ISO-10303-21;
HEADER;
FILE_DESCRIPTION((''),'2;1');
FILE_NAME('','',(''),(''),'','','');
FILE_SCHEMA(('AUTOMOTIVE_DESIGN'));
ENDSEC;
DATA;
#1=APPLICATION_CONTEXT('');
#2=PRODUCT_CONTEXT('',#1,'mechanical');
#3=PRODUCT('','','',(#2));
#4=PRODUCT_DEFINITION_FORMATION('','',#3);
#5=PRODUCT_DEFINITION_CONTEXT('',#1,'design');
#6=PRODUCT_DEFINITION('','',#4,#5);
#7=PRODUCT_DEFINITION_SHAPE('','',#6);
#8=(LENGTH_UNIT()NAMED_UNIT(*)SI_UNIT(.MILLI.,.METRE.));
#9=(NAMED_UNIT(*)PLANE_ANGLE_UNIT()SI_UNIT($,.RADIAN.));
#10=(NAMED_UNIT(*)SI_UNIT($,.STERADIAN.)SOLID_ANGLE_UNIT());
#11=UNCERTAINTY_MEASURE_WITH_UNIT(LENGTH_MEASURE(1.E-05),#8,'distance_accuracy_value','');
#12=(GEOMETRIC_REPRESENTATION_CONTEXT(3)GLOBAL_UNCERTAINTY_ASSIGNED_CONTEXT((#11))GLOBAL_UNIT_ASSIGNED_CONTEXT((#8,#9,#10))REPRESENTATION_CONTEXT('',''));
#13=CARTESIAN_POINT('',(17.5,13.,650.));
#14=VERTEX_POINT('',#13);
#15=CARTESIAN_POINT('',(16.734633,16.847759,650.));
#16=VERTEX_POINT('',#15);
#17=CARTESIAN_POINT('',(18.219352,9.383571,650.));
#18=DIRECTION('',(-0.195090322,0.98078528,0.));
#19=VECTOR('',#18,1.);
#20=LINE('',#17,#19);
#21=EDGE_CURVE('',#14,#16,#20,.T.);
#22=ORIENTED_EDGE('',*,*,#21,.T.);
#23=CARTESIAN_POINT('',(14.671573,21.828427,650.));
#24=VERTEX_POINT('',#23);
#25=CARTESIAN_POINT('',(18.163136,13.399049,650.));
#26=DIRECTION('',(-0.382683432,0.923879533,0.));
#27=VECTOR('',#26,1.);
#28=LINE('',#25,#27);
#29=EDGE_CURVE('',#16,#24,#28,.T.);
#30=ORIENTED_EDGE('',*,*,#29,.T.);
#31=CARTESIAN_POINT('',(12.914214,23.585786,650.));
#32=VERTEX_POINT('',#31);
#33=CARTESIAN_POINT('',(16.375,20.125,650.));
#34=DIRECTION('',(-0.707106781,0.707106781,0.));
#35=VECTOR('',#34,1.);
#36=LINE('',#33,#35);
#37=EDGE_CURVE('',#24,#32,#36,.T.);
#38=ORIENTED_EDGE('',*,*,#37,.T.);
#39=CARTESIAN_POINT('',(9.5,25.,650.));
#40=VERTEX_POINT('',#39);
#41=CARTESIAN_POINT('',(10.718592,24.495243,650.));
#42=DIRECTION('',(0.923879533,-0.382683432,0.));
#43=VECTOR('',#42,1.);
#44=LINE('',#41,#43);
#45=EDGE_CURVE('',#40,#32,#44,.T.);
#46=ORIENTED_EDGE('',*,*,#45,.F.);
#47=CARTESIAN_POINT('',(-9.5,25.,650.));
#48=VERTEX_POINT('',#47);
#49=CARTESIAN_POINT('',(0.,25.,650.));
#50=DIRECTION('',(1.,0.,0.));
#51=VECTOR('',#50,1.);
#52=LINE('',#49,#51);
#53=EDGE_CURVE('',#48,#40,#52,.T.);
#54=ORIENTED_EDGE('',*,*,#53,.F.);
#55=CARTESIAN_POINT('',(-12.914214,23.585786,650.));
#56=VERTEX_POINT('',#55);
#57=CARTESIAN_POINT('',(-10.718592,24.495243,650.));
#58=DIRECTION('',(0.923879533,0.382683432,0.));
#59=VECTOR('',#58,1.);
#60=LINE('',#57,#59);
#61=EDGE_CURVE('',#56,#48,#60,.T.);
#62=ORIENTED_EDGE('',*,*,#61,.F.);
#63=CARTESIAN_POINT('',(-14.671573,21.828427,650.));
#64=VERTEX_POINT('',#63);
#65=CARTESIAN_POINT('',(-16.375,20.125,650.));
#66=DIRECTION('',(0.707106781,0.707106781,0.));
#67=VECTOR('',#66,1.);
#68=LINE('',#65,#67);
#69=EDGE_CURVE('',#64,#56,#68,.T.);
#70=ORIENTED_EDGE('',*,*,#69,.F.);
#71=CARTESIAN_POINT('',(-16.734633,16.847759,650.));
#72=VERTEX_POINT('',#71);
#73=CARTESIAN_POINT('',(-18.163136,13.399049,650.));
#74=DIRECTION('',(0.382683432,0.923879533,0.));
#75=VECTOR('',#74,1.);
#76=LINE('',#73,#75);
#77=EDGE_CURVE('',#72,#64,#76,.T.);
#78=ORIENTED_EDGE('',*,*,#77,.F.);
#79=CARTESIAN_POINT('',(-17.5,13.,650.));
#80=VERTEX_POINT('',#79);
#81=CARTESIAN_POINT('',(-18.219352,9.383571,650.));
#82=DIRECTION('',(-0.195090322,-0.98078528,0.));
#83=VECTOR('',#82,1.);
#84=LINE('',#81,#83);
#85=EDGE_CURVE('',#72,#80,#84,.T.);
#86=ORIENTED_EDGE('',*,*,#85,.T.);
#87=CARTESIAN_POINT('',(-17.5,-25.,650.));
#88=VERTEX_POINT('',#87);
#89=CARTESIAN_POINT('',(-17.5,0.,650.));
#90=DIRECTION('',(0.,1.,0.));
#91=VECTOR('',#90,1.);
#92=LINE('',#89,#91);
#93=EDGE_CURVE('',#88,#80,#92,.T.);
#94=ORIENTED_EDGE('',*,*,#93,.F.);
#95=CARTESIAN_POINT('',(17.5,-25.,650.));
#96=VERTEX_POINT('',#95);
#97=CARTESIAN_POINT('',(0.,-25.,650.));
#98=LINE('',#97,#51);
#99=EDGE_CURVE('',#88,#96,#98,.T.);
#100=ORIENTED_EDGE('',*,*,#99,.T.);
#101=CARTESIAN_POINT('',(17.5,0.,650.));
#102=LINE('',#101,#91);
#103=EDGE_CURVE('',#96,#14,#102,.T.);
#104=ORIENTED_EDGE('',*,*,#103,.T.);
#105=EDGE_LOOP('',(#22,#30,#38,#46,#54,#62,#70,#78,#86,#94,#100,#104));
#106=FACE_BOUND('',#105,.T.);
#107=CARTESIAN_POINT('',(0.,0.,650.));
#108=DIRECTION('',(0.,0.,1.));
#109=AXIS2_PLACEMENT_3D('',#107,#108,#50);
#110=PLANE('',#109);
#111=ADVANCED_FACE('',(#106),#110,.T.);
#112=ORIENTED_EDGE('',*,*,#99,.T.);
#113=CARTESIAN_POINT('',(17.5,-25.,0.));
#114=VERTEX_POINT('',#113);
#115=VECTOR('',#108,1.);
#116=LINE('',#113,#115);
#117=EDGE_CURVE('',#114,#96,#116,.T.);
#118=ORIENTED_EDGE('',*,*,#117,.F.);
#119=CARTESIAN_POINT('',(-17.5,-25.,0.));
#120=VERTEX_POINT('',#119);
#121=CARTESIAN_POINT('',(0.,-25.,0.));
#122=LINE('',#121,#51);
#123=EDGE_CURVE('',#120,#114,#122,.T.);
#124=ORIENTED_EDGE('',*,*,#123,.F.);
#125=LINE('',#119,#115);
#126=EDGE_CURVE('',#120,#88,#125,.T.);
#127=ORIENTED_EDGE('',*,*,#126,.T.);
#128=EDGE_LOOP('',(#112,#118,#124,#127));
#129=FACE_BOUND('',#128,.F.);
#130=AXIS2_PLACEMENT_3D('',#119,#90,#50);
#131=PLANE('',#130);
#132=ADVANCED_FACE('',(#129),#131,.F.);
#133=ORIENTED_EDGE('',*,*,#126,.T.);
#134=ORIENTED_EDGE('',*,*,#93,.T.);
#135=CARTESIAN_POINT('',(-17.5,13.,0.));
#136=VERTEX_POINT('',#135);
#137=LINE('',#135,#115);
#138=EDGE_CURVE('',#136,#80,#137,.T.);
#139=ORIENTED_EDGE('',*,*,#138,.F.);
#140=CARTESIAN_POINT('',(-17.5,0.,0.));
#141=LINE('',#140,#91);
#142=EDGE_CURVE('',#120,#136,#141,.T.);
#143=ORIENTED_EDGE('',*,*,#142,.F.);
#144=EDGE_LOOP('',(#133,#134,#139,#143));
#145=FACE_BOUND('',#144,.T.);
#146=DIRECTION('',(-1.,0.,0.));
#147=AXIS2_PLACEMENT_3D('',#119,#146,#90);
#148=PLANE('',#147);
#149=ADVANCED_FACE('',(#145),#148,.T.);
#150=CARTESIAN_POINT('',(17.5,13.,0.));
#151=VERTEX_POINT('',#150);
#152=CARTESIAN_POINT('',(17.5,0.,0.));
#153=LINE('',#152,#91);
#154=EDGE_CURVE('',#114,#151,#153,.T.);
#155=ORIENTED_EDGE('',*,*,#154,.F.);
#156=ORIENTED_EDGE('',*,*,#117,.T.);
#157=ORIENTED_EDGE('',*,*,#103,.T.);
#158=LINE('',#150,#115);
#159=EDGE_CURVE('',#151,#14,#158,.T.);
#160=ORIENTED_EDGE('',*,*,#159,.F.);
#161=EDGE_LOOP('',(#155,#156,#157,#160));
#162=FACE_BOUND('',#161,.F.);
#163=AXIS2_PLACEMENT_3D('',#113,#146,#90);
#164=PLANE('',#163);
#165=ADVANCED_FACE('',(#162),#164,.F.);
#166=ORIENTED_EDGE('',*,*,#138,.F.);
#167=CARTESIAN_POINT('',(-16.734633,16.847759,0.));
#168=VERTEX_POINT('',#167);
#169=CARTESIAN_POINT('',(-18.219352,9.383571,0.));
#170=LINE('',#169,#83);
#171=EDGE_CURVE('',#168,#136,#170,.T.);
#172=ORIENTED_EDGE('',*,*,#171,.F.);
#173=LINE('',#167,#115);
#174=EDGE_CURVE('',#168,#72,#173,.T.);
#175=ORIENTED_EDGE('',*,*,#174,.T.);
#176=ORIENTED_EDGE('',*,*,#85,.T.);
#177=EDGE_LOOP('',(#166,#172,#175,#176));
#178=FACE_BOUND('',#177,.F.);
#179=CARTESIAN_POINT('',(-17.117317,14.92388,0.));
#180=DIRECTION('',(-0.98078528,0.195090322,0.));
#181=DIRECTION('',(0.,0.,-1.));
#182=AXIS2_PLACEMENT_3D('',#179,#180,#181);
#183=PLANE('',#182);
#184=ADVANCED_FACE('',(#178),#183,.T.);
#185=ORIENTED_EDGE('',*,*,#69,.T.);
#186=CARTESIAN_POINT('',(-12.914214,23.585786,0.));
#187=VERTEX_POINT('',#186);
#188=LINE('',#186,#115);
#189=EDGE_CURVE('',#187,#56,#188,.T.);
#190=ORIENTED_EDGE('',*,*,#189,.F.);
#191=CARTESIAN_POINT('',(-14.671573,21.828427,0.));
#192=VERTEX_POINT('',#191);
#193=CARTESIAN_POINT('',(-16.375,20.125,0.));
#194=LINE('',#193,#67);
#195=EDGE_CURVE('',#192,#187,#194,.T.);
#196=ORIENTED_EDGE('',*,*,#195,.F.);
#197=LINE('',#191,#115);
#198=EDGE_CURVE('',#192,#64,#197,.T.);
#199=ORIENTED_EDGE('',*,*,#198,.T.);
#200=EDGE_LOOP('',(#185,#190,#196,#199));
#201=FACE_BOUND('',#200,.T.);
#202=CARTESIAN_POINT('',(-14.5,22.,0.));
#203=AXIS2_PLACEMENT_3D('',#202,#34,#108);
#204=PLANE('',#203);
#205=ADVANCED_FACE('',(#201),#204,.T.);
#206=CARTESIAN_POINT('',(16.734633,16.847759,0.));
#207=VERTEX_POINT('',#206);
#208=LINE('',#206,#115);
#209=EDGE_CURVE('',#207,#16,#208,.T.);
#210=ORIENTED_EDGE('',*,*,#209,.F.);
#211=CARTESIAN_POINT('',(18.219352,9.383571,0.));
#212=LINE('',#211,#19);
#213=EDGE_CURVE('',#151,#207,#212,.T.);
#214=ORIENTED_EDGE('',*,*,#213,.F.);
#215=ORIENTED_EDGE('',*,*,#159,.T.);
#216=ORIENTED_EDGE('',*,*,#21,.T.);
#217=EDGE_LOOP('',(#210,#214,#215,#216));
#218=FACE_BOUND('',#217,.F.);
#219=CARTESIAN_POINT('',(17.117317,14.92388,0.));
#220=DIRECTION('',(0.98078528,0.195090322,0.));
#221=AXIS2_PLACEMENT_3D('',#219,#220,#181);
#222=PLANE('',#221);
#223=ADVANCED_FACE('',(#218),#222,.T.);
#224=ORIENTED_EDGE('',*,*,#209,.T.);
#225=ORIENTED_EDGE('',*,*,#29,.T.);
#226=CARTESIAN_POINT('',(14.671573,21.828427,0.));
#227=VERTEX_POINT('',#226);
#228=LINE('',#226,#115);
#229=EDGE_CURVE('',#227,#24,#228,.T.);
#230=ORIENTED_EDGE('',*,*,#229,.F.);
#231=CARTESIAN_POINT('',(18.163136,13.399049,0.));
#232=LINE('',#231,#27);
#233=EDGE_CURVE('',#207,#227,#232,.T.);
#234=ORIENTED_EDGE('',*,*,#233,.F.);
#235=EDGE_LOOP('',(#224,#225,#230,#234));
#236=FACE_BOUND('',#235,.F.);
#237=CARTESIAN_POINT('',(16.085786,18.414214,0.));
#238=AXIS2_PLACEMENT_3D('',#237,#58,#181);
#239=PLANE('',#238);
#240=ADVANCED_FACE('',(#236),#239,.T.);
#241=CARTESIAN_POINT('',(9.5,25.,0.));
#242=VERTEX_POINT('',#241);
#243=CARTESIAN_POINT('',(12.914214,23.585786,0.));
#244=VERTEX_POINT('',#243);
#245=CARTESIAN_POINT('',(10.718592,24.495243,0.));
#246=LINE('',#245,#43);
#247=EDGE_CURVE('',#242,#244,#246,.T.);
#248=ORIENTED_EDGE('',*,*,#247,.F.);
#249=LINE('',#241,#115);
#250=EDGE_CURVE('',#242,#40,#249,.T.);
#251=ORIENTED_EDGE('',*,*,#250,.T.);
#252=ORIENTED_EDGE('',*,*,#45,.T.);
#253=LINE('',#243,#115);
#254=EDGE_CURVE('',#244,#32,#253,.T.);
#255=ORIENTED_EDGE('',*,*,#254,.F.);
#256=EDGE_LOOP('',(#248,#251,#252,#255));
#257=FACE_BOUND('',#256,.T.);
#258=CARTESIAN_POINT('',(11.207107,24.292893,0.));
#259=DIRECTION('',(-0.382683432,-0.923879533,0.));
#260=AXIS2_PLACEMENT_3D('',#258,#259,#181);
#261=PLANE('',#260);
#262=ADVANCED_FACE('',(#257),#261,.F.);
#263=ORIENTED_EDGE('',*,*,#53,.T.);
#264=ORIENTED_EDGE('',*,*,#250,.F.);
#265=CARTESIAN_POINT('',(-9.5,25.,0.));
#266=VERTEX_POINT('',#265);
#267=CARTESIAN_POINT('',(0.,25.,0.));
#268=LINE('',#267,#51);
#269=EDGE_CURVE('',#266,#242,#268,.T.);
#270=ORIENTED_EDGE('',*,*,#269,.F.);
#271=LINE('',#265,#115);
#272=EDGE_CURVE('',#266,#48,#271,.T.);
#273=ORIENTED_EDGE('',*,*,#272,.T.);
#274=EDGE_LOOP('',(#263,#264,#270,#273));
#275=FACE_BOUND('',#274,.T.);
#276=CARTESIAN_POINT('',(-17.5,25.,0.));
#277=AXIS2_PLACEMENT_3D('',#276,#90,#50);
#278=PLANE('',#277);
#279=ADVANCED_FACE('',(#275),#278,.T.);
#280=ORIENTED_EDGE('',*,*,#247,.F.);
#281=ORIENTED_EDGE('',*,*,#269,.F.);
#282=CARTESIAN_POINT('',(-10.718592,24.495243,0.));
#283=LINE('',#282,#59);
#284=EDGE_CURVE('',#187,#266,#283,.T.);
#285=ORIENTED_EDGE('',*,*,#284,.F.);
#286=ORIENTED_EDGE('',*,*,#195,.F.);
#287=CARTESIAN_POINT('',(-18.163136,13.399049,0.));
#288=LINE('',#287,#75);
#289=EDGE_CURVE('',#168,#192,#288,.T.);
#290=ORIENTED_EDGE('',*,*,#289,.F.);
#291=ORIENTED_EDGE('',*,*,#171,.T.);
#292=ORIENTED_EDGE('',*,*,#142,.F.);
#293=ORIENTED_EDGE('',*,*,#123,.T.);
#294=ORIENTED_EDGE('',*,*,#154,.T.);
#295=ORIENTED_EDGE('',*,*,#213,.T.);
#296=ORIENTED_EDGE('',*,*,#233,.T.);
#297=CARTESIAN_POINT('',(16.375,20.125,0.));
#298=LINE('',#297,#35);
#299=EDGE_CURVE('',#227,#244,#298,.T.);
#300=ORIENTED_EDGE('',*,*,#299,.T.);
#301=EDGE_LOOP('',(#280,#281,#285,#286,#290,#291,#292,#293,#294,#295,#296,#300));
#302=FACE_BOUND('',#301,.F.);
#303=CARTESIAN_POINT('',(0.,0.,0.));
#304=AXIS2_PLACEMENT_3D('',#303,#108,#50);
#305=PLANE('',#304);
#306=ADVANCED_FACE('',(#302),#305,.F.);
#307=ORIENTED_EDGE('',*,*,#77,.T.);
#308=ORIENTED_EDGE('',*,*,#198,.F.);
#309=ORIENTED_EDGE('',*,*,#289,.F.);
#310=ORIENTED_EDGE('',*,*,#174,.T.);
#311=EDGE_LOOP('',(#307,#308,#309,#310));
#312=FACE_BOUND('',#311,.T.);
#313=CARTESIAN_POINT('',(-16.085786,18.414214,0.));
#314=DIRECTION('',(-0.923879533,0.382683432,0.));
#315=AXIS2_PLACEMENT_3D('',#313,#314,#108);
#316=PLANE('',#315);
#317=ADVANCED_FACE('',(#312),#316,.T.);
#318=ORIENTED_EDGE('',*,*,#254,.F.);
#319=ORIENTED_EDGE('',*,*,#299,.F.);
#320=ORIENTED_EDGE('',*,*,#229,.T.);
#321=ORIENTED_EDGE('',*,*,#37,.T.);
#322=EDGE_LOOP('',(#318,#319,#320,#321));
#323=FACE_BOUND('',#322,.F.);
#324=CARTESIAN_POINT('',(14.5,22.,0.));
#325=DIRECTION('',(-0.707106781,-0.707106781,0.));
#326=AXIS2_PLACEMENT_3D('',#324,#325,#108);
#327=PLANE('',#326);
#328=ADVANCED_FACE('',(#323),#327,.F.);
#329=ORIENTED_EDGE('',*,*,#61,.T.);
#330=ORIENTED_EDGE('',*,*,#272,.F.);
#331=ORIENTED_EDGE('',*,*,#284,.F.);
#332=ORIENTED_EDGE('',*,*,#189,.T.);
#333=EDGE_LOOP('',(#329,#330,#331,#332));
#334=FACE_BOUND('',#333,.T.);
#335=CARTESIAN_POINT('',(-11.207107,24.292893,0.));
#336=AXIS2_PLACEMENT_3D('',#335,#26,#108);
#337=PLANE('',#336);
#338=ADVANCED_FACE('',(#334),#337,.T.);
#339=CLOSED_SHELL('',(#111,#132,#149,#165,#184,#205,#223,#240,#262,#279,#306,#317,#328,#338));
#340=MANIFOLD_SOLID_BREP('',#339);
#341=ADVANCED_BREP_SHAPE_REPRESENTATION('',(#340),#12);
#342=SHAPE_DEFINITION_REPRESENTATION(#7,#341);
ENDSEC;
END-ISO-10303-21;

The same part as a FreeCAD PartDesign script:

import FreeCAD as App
import Part
import Sketcher


def edges_at(feature, points):
    """Names of the edges that pass closest to the given points."""
    edges = feature.Shape.Edges
    near = lambda p: min(range(len(edges)), key=lambda i: edges[i].distToShape(Part.Vertex(*p))[0])
    return sorted({f"Edge{near(p) + 1}" for p in points})


def add_polygon(sketch, points):
    """Adds a closed chain of lines whose ends are joined by coincident constraints."""
    first, n = sketch.GeometryCount, len(points)
    for a, b in zip(points, points[1:] + points[:1]):
        sketch.addGeometry(Part.LineSegment(App.Vector(*a, 0), App.Vector(*b, 0)), False)
    for i in range(n):
        sketch.addConstraint(Sketcher.Constraint("Coincident", first + i, 2, first + (i + 1) % n, 1))

doc = App.newDocument("Part")
params = doc.addObject("Spreadsheet::Sheet", "Params")
for row, (alias, value) in enumerate([
    ("sketch1_width", "35 mm"),
    ("sketch1_height", "50 mm"),
    ("pad1_length", "650 mm"),
    ("chamfer_size", "6 mm"),
    ("chamfer2_size", "4 mm"),
    ("chamfer3_size", "2 mm"),
    ("chamfer4_size", "2 mm"),
], start=1):
    params.set(f"A{row}", alias)
    params.set(f"B{row}", "=" + value)
    params.setAlias(f"B{row}", alias)

body = doc.addObject("PartDesign::Body", "Body")

# Sketch on XY plane
sketch1 = body.newObject("Sketcher::SketchObject", "Sketch")
sketch1.AttachmentSupport = (doc.getObject("XY_Plane"), [""])
sketch1.MapMode = "FlatFace"
add_polygon(sketch1, [(-17.5, 25), (-17.5, -25), (17.5, -25), (17.5, 25)])  # lines 0-3
sketch1.addConstraint([
    Sketcher.Constraint("Vertical", 0),
    Sketcher.Constraint("Horizontal", 1),
    Sketcher.Constraint("Vertical", 2),
    Sketcher.Constraint("Horizontal", 3),
    Sketcher.Constraint("Symmetric", 0, 2, 2, 2, -1, 1),
    Sketcher.Constraint("DistanceX", 1, 1, 1, 2, 35.0),
    Sketcher.Constraint("DistanceY", 0, 2, 0, 1, 50.0),
])
sketch1.setExpression("Constraints[9]", "Params.sketch1_width")
sketch1.setExpression("Constraints[10]", "Params.sketch1_height")
pad1 = body.newObject("PartDesign::Pad", "Pad")
pad1.Profile = sketch1
pad1.setExpression("Length", "Params.pad1_length")
doc.recompute()

chamfer = body.newObject("PartDesign::Chamfer", "Chamfer")
chamfer.Base = (pad1, edges_at(pad1, [(-17.5, 25, 325), (17.5, 25, 325)]))
chamfer.setExpression("Size", "Params.chamfer_size")
doc.recompute()

chamfer2 = body.newObject("PartDesign::Chamfer", "Chamfer001")
chamfer2.Base = (chamfer, edges_at(chamfer, [(-17.5, 19, 325), (17.5, 19, 325)]))
chamfer2.setExpression("Size", "Params.chamfer2_size")
doc.recompute()

chamfer3 = body.newObject("PartDesign::Chamfer", "Chamfer002")
chamfer3.Base = (chamfer2, edges_at(chamfer2, [(-11.5, 25, 325), (11.5, 25, 325)]))
chamfer3.setExpression("Size", "Params.chamfer3_size")
doc.recompute()

chamfer4 = body.newObject("PartDesign::Chamfer", "Chamfer003")
chamfer4.Base = (chamfer3, edges_at(chamfer3, [(-17.5, 15, 325), (17.5, 15, 325)]))
chamfer4.setExpression("Size", "Params.chamfer4_size")

doc.recompute()
